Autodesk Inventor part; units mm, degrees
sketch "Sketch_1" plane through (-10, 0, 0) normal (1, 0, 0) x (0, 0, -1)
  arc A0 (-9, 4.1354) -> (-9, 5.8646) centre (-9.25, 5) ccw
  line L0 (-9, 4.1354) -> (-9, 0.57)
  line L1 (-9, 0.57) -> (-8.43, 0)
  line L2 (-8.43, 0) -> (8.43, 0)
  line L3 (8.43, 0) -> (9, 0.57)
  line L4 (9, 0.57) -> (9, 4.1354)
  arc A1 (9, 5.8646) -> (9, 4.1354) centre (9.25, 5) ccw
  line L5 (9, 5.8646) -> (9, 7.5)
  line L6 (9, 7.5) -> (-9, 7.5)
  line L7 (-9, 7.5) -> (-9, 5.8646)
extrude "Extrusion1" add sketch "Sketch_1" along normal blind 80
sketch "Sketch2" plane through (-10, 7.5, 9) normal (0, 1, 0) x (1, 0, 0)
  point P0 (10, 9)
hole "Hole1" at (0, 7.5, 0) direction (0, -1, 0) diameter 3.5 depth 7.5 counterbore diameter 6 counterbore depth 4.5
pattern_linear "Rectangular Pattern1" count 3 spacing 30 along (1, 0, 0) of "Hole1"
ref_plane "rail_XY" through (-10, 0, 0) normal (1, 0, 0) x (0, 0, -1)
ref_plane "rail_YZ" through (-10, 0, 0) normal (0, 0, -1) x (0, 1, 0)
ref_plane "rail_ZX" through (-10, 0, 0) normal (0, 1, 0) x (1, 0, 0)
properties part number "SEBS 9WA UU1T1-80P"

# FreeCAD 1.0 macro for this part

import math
import FreeCAD as App
import Part
import Sketcher

doc = App.newDocument("Part")
body = doc.addObject("PartDesign::Body", "Body")

# Sketch on YZ plane
sketch1 = body.newObject("Sketcher::SketchObject", "Sketch")
sketch1.AttachmentSupport = (doc.getObject("YZ_Plane"), [""])
sketch1.MapMode = "FlatFace"
sketch1.AttachmentOffset = App.Placement(App.Vector(0, 0, -10), App.Rotation())
sketch1.addGeometry(Part.ArcOfCircle(Part.Circle(App.Vector(5, 9.2, 0), App.Vector(0, 0, 1), 0.9), math.radians(-164), math.radians(-16)), False)
sketch1.addGeometry(Part.LineSegment(App.Vector(4.1, 9, 0), App.Vector(0.6, 9, 0)), False)
sketch1.addGeometry(Part.LineSegment(App.Vector(0.6, 9, 0), App.Vector(0, 8.4, 0)), False)
sketch1.addGeometry(Part.LineSegment(App.Vector(0, 8.4, 0), App.Vector(0, -8.4, 0)), False)
sketch1.addGeometry(Part.LineSegment(App.Vector(0, -8.4, 0), App.Vector(0.6, -9, 0)), False)
sketch1.addGeometry(Part.LineSegment(App.Vector(0.6, -9, 0), App.Vector(4.1, -9, 0)), False)
sketch1.addGeometry(Part.ArcOfCircle(Part.Circle(App.Vector(5, -9.2, 0), App.Vector(0, 0, 1), 0.9), math.radians(16), math.radians(164)), False)
sketch1.addGeometry(Part.LineSegment(App.Vector(5.9, -9, 0), App.Vector(7.5, -9, 0)), False)
sketch1.addGeometry(Part.LineSegment(App.Vector(7.5, -9, 0), App.Vector(7.5, 9, 0)), False)
sketch1.addGeometry(Part.LineSegment(App.Vector(7.5, 9, 0), App.Vector(5.9, 9, 0)), False)
sketch1.addConstraint(Sketcher.Constraint("Coincident", 0, 1, 1, 1))
sketch1.addConstraint(Sketcher.Constraint("Coincident", 1, 2, 2, 1))
sketch1.addConstraint(Sketcher.Constraint("Coincident", 2, 2, 3, 1))
sketch1.addConstraint(Sketcher.Constraint("Coincident", 3, 2, 4, 1))
sketch1.addConstraint(Sketcher.Constraint("Coincident", 4, 2, 5, 1))
sketch1.addConstraint(Sketcher.Constraint("Coincident", 5, 2, 6, 2))
sketch1.addConstraint(Sketcher.Constraint("Coincident", 6, 1, 7, 1))
sketch1.addConstraint(Sketcher.Constraint("Coincident", 7, 2, 8, 1))
sketch1.addConstraint(Sketcher.Constraint("Coincident", 8, 2, 9, 1))
sketch1.addConstraint(Sketcher.Constraint("Coincident", 9, 2, 0, 2))
sketch1.addConstraint(Sketcher.Constraint("Horizontal", 1))
sketch1.addConstraint(Sketcher.Constraint("Vertical", 3))
sketch1.addConstraint(Sketcher.Constraint("Horizontal", 5))
sketch1.addConstraint(Sketcher.Constraint("Horizontal", 7))
sketch1.addConstraint(Sketcher.Constraint("Vertical", 8))
sketch1.addConstraint(Sketcher.Constraint("Horizontal", 9))
sketch1.addConstraint(Sketcher.Constraint("Equal", 0, 6))
sketch1.addConstraint(Sketcher.Constraint("Symmetric", 2, 2, 3, 2, -1, 1))
sketch1.addConstraint(Sketcher.Constraint("Symmetric", 0, 3, 6, 3, -1))
sketch1.addConstraint(Sketcher.Constraint("Symmetric", 1, 2, 4, 2, -1))
sketch1.addConstraint(Sketcher.Constraint("Perpendicular", 2, 4))
sketch1.addConstraint(Sketcher.Constraint("Horizontal", 5, 2, 6, 1))
sketch1.addConstraint(Sketcher.Constraint("Horizontal", 1, 2, 8, 2))
sketch1.addConstraint(Sketcher.Constraint("Radius", 0, 0.9))
sketch1.addConstraint(Sketcher.Constraint("DistanceY", 8, 1, 8, 2, 18.0))
sketch1.addConstraint(Sketcher.Constraint("DistanceX", -1, 1, 0, 3, 5.0))
sketch1.addConstraint(Sketcher.Constraint("DistanceY", 3, 2, 3, 1, 16.86))
sketch1.addConstraint(Sketcher.Constraint("DistanceX", -1, 1, 7, 2, 7.5))
sketch1.addConstraint(Sketcher.Constraint("DistanceY", 6, 3, 0, 3, 18.5))
pad1 = body.newObject("PartDesign::Pad", "Pad")
pad1.Profile = sketch1
pad1.Length = 80

# Sketch on XZ plane
sketch2 = body.newObject("Sketcher::SketchObject", "Sketch001")
sketch2.AttachmentSupport = (doc.getObject("XZ_Plane"), [""])
sketch2.MapMode = "FlatFace"
sketch2.AttachmentOffset = App.Placement(App.Vector(0, 0, -7.5), App.Rotation())
sketch2.addGeometry(Part.Circle(App.Vector(0, 0, 0), App.Vector(0, 0, 1), 1.8), False)
sketch2.addConstraint(Sketcher.Constraint("Coincident", 0, 3, -1, 1))
sketch2.addConstraint(Sketcher.Constraint("Diameter", 0, 3.5))
doc.recompute()
hole = body.newObject("PartDesign::Hole", "Hole")
hole.Profile = sketch2
hole.ThreadType = "None"
hole.Diameter = 3.5
hole.DepthType = "Dimension"
hole.Depth = 7.5
hole.DrillPoint = "Flat"
hole.HoleCutType = "Counterbore"
hole.HoleCutDiameter = 6
hole.HoleCutDepth = 4.5
hole.Reversed = True
doc.recompute()

linearpattern = body.newObject("PartDesign::LinearPattern", "LinearPattern")
linearpattern.Originals = [hole]
linearpattern.Direction = (doc.getObject("X_Axis"), [""])
linearpattern.Mode = "offset"
linearpattern.Offset = 30
linearpattern.Occurrences = 3
body.Tip = linearpattern

doc.recompute()
